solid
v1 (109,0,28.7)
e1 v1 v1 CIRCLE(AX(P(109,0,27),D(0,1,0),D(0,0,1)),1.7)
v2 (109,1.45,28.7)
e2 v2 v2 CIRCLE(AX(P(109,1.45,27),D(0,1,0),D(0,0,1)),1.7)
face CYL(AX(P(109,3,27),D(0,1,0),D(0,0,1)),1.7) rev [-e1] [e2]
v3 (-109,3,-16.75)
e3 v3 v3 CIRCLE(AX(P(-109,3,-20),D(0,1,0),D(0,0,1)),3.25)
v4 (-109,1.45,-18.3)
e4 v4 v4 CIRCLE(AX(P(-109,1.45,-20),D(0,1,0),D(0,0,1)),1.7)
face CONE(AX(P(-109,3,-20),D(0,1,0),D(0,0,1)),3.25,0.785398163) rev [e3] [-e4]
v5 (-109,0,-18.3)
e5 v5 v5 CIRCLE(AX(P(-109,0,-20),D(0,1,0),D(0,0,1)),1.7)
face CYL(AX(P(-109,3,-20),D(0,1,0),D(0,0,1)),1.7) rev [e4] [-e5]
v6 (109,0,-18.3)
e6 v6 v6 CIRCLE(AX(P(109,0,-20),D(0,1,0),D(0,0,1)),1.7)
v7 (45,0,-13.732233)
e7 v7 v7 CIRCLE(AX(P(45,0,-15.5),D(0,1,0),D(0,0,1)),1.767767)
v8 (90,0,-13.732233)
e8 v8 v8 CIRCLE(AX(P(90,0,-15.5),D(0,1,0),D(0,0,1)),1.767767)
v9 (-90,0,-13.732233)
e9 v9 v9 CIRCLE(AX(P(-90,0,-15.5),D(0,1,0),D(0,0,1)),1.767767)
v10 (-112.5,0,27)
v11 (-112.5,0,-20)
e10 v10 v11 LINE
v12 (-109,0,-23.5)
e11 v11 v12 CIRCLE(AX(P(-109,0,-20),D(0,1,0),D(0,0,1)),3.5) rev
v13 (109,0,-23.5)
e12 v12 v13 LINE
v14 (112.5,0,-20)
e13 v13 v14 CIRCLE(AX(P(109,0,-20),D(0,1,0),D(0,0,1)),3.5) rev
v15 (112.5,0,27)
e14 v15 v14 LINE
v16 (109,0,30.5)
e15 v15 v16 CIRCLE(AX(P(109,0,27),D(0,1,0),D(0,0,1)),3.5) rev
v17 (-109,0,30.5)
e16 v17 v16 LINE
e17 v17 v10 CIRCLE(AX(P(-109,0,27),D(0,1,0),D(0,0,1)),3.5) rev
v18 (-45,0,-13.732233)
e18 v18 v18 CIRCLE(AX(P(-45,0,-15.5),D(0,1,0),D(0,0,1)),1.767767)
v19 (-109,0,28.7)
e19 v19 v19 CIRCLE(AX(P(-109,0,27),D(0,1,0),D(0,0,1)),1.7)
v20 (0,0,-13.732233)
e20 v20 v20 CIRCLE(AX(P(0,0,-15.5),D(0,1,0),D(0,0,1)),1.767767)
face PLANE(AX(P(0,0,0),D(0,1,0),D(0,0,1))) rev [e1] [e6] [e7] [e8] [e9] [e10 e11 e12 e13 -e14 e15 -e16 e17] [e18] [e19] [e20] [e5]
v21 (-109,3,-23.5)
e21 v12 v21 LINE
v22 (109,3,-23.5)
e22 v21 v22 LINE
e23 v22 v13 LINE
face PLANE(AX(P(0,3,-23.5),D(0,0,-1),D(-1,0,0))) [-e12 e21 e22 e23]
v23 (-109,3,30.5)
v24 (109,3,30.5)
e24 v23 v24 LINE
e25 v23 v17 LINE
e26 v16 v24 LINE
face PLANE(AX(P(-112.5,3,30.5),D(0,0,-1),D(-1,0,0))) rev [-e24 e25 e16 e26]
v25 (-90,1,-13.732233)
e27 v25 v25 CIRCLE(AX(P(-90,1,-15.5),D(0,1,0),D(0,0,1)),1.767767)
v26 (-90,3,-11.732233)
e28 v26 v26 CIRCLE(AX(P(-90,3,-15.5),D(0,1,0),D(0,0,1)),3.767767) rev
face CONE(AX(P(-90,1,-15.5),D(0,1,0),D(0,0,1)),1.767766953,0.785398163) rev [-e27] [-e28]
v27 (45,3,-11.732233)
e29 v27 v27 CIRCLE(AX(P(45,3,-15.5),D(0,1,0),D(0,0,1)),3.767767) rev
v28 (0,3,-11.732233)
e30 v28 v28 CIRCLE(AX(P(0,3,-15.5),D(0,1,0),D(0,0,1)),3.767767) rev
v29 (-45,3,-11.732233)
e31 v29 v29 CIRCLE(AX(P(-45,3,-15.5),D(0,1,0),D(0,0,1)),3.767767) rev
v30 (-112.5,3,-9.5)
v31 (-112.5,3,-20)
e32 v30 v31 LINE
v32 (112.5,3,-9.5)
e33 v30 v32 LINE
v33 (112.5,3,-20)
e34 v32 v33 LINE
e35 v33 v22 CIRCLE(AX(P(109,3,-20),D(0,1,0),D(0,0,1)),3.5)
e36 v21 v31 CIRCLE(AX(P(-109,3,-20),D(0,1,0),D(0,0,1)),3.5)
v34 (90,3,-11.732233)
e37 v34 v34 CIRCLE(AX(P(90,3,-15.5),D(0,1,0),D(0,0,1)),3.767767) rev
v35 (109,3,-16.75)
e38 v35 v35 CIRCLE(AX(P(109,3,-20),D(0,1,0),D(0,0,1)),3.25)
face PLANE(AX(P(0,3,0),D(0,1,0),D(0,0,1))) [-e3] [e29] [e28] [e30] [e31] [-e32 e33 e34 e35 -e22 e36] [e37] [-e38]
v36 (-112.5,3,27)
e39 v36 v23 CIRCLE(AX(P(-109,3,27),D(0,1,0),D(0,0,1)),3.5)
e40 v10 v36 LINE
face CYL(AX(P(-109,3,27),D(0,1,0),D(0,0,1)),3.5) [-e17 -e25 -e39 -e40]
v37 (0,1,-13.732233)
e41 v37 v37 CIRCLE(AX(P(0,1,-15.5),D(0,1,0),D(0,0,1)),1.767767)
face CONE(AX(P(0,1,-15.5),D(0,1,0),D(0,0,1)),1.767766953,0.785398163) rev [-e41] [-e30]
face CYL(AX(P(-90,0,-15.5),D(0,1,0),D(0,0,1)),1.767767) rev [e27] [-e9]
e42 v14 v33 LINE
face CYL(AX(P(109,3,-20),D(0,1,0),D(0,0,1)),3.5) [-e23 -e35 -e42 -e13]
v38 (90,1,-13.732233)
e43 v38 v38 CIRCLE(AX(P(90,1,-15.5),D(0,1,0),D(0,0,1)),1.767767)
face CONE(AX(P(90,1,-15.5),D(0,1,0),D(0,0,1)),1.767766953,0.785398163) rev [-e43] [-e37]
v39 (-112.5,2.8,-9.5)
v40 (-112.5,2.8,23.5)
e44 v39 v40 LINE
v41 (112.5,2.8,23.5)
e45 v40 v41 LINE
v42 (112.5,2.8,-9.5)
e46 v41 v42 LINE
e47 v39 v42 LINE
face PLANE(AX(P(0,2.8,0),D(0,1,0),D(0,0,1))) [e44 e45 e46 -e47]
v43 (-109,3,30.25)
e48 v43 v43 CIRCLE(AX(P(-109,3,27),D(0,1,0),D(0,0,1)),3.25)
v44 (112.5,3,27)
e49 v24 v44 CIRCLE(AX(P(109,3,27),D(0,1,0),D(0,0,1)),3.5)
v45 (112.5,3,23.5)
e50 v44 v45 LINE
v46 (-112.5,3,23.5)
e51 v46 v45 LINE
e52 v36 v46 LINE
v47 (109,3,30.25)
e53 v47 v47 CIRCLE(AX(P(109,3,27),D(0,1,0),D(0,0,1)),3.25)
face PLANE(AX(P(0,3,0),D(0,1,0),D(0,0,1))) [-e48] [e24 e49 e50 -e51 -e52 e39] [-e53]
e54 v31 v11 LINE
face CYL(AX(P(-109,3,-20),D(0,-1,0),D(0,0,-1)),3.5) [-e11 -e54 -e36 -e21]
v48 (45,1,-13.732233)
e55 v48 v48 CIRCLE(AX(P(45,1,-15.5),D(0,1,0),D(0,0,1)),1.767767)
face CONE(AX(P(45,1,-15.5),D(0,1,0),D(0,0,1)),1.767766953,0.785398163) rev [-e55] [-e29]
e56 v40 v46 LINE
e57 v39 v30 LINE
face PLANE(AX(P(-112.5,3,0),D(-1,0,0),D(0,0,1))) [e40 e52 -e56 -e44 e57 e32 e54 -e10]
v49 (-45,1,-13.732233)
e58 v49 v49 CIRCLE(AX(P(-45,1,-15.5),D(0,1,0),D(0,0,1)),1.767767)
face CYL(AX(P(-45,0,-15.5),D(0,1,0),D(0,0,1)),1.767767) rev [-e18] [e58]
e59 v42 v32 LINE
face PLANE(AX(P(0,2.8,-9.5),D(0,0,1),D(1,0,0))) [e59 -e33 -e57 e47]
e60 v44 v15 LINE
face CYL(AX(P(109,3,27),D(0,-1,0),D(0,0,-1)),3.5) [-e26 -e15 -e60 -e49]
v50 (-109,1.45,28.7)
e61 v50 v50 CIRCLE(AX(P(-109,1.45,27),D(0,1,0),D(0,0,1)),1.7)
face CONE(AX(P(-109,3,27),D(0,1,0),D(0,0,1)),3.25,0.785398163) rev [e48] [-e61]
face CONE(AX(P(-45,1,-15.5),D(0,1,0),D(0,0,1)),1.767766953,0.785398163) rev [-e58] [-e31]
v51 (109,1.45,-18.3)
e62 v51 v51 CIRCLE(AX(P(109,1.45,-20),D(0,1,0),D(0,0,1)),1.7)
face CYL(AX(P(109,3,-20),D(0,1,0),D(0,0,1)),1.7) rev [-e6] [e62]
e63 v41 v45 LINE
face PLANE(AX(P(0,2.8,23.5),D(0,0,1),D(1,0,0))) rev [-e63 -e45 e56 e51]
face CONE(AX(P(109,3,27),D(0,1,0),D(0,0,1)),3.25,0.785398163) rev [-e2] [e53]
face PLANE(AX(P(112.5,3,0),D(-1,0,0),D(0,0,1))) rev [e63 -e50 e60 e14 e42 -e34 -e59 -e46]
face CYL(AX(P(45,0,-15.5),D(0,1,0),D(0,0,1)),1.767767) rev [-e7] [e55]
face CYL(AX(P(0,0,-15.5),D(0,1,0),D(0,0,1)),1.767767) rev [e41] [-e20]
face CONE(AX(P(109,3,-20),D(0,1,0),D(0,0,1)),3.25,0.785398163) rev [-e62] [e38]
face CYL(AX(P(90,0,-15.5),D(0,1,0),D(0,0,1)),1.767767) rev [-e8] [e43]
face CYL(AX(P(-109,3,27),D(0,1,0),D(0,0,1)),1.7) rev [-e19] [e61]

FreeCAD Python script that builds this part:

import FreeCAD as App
import Part
import Sketcher
Q = App.Units.Quantity


def edges_at(feature, points):
    """Names of the edges that pass closest to the given points."""
    edges = feature.Shape.Edges
    near = lambda p: min(range(len(edges)), key=lambda i: edges[i].distToShape(Part.Vertex(*p))[0])
    return sorted({f"Edge{near(p) + 1}" for p in points})

doc = App.newDocument("Part")
body = doc.addObject("PartDesign::Body", "Body")

# Sketch on XZ plane
sketch1 = doc.addObject("Sketcher::SketchObject", "Sketch")
body.addObject(sketch1)
sketch1.AttachmentSupport = (doc.XZ_Plane, [""])
sketch1.MapMode = "FlatFace"
sketch1.addGeometry([
    Part.LineSegment(App.Vector(-112, -24, 0), App.Vector(-112, 30, 0)),
    Part.LineSegment(App.Vector(-112, 30, 0), App.Vector(112, 30, 0)),
    Part.LineSegment(App.Vector(112, 30, 0), App.Vector(112, -24, 0)),
    Part.LineSegment(App.Vector(112, -24, 0), App.Vector(-112, -24, 0)),
], False)
sketch1.addConstraint([
    Sketcher.Constraint("Coincident", 0, 2, 1, 1),
    Sketcher.Constraint("Coincident", 1, 2, 2, 1),
    Sketcher.Constraint("Coincident", 2, 2, 3, 1),
    Sketcher.Constraint("Coincident", 3, 2, 0, 1),
    Sketcher.Constraint("Vertical", 0),
    Sketcher.Constraint("Horizontal", 1),
    Sketcher.Constraint("Vertical", 2),
    Sketcher.Constraint("Horizontal", 3),
    Sketcher.Constraint("DistanceX", 1, 1, 1, 2, 225.0),
    Sketcher.Constraint("DistanceY", 0, 1, 0, 2, 54.0),
    Sketcher.Constraint("DistanceX", 0, 2, -1, 1, 112.5),
    Sketcher.Constraint("DistanceY", -1, 1, 0, 2, 30.5),
])
pad1 = doc.addObject("PartDesign::Pad", "Pad")
body.addObject(pad1)
pad1.Profile = sketch1
pad1.Length = 3
pad1.Reversed = True

# Sketch on XZ plane
sketch2 = doc.addObject("Sketcher::SketchObject", "Sketch001")
body.addObject(sketch2)
sketch2.AttachmentSupport = (doc.XZ_Plane, [""])
sketch2.MapMode = "FlatFace"
sketch2.AttachmentOffset = App.Placement(App.Vector(0, 0, -3), App.Rotation())
sketch2.addGeometry([
    Part.Circle(App.Vector(0, -15.5, 0), App.Vector(0, 0, 1), 1.8),  # 0
    Part.Circle(App.Vector(45, -15.5, 0), App.Vector(0, 0, 1), 1.8),  # 1
    Part.Circle(App.Vector(90, -15.5, 0), App.Vector(0, 0, 1), 1.8),  # 2
    Part.Circle(App.Vector(-45, -15.5, 0), App.Vector(0, 0, 1), 1.8),  # 3
    Part.Circle(App.Vector(-90, -15.5, 0), App.Vector(0, 0, 1), 1.8),  # 4
], False)
sketch2.addConstraint([
    Sketcher.Constraint("Equal", 0, 1),
    Sketcher.Constraint("Equal", 1, 2),
    Sketcher.Constraint("Equal", 2, 3),
    Sketcher.Constraint("Equal", 3, 4),
    Sketcher.Constraint("Symmetric", 1, 3, 3, 3, -2),
    Sketcher.Constraint("Symmetric", 2, 3, 4, 3, -2),
    Sketcher.Constraint("PointOnObject", 0, 3, -2),
    Sketcher.Constraint("Horizontal", 0, 3, 1, 3),
    Sketcher.Constraint("Horizontal", 1, 3, 2, 3),
    Sketcher.Constraint("DistanceX", -1, 1, 1, 3, 45.0),
    Sketcher.Constraint("DistanceX", -1, 1, 2, 3, 90.0),
    Sketcher.Constraint("DistanceY", 0, 3, -1, 1, 15.5),
    Sketcher.Constraint("Diameter", 0, 3.535534),
])
pocket1 = doc.addObject("PartDesign::Pocket", "Pocket")
body.addObject(pocket1)
pocket1.Profile = sketch2
pocket1.Type = "ThroughAll"
pocket1.Reversed = True
doc.recompute()

chamfer = doc.addObject("PartDesign::Chamfer", "Chamfer")
body.addObject(chamfer)
chamfer.Base = (pocket1, edges_at(pocket1, [
    (-90, 3, -17.268),
    (-45, 3, -17.268),
    (90, 3, -17.268),
    (45, 3, -17.268),
    (0, 3, -17.268),
]))
chamfer.Size = 2

# Sketch on XZ plane
sketch3 = doc.addObject("Sketcher::SketchObject", "Sketch002")
body.addObject(sketch3)
sketch3.AttachmentSupport = (doc.XZ_Plane, [""])
sketch3.MapMode = "FlatFace"
sketch3.AttachmentOffset = App.Placement(App.Vector(0, 0, -3), App.Rotation())
sketch3.addGeometry([
    Part.LineSegment(App.Vector(-112, -10, 0), App.Vector(-112, 24, 0)),
    Part.LineSegment(App.Vector(-112, 24, 0), App.Vector(112, 24, 0)),
    Part.LineSegment(App.Vector(112, 24, 0), App.Vector(112, -10, 0)),
    Part.LineSegment(App.Vector(112, -10, 0), App.Vector(-112, -10, 0)),
], False)
sketch3.addConstraint([
    Sketcher.Constraint("Coincident", 0, 2, 1, 1),
    Sketcher.Constraint("Coincident", 1, 2, 2, 1),
    Sketcher.Constraint("Coincident", 2, 2, 3, 1),
    Sketcher.Constraint("Coincident", 3, 2, 0, 1),
    Sketcher.Constraint("Vertical", 0),
    Sketcher.Constraint("Horizontal", 1),
    Sketcher.Constraint("Vertical", 2),
    Sketcher.Constraint("Horizontal", 3),
    Sketcher.Constraint("DistanceX", 1, 1, 1, 2, 225.0),
    Sketcher.Constraint("DistanceY", 0, 1, 0, 2, 33.0),
    Sketcher.Constraint("DistanceX", 0, 2, -1, 1, 112.5),
    Sketcher.Constraint("DistanceY", -1, 1, 0, 2, 23.5),
])
pocket2 = doc.addObject("PartDesign::Pocket", "Pocket001")
body.addObject(pocket2)
pocket2.Profile = sketch3
pocket2.Length = 0.2
pocket2.Reversed = True
doc.recompute()

fillet = doc.addObject("PartDesign::Fillet", "Fillet")
body.addObject(fillet)
fillet.Base = (pocket2, edges_at(pocket2, [
    (112.5, 1.5, 30.5),
    (-112.5, 1.5, 30.5),
    (-112.5, 1.5, -23.5),
    (112.5, 1.5, -23.5),
]))
fillet.Radius = 3.5

# Sketch on YZ plane
sketch4 = doc.addObject("Sketcher::SketchObject", "Sketch003")
body.addObject(sketch4)
sketch4.AttachmentSupport = (doc.YZ_Plane, [""])
sketch4.MapMode = "FlatFace"
sketch4.AttachmentOffset = App.Placement(App.Vector(0, 0, 109), App.Rotation())
sketch4.addGeometry([
    Part.LineSegment(App.Vector(0, -20, 0), App.Vector(3, -20, 0)),  # 0
    Part.LineSegment(App.Vector(3, -20, 0), App.Vector(3, -16.8, 0)),  # 1
    Part.LineSegment(App.Vector(3, -16.8, 0), App.Vector(1.4, -18.3, 0)),  # 2
    Part.LineSegment(App.Vector(1.4, -18.3, 0), App.Vector(0, -18.3, 0)),  # 3
    Part.LineSegment(App.Vector(0, -18.3, 0), App.Vector(0, -20, 0)),  # 4
], False)
sketch4.addGeometry(Part.LineSegment(App.Vector(3, -20, 0), App.Vector(0, -20, 0)), True)  # axis
sketch4.addConstraint([
    Sketcher.Constraint("Coincident", 0, 2, 1, 1),
    Sketcher.Constraint("Coincident", 1, 2, 2, 1),
    Sketcher.Constraint("Coincident", 2, 2, 3, 1),
    Sketcher.Constraint("Coincident", 3, 2, 4, 1),
    Sketcher.Constraint("Coincident", 4, 2, 0, 1),
    Sketcher.Constraint("Horizontal", 0),
    Sketcher.Constraint("Vertical", 1),
    Sketcher.Constraint("Horizontal", 3),
    Sketcher.Constraint("Vertical", 4),
    Sketcher.Constraint("Horizontal", 5),
    Sketcher.Constraint("Coincident", 5, 1, 0, 2),
    Sketcher.Constraint("PointOnObject", 3, 2, -2),
    Sketcher.Constraint("PointOnObject", 5, 2, -2),
    Sketcher.Constraint("DistanceX", 0, 1, 0, 2, 3.0),
    Sketcher.Constraint("Angle", 2, Q("-135 deg")),
    Sketcher.Constraint("DistanceY", 4, 2, 4, 1, 1.7),
    Sketcher.Constraint("DistanceY", 0, 2, -1, 1, 20.0),
    Sketcher.Constraint("DistanceX", 3, 2, 3, 1, 1.45),
])
groove = doc.addObject("PartDesign::Groove", "Groove")
body.addObject(groove)
groove.Profile = sketch4
groove.ReferenceAxis = (sketch4, ["Axis0"])
groove.Angle = 360
doc.recompute()

linearpattern = doc.addObject("PartDesign::LinearPattern", "LinearPattern")
body.addObject(linearpattern)
linearpattern.Originals = [groove]
linearpattern.Direction = (doc.Z_Axis, [""])
linearpattern.Mode = "offset"
linearpattern.Offset = 47
linearpattern.Occurrences = 2
body.Tip = linearpattern
doc.recompute()

datumline = doc.addObject("PartDesign::Line", "DatumLine")
body.addObject(datumline)
datumline.Placement = App.Placement(App.Vector(0, 0, 0), App.Rotation(App.Vector(0, 0, 1), App.Vector(-0.977539161, 0, 0.210753856)))
linearpattern2 = doc.addObject("PartDesign::LinearPattern", "LinearPattern001")
body.addObject(linearpattern2)
linearpattern2.Originals = [groove]
linearpattern2.Direction = (datumline, [""])
linearpattern2.Mode = "offset"
linearpattern2.Offset = 223.008968
linearpattern2.Occurrences = 2
body.Tip = linearpattern2
doc.recompute()

linearpattern3 = doc.addObject("PartDesign::LinearPattern", "LinearPattern002")
body.addObject(linearpattern3)
linearpattern3.Originals = [groove]
linearpattern3.Direction = (doc.X_Axis, [""])
linearpattern3.Mode = "offset"
linearpattern3.Offset = 218
linearpattern3.Occurrences = 2
linearpattern3.Reversed = True
body.Tip = linearpattern3

doc.recompute()
